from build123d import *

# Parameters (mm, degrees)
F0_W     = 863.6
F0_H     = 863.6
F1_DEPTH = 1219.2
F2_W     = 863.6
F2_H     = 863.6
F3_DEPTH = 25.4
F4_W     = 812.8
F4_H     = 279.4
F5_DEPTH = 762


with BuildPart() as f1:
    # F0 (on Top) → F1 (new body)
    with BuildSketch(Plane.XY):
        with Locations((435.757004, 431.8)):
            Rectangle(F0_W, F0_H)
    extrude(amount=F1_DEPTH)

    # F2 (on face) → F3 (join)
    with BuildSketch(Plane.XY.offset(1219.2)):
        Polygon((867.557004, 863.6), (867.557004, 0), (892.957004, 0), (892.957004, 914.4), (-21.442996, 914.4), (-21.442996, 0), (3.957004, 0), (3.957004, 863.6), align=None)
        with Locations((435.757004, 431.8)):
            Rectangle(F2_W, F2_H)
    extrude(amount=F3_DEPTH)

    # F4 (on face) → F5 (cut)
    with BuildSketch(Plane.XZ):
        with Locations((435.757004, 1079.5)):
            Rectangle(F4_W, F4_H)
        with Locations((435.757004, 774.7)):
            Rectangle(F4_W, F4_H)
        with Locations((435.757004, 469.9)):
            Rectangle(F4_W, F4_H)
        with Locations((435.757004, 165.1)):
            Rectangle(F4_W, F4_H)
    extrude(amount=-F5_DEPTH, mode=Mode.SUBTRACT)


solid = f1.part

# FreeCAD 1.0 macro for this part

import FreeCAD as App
import Part
import Sketcher
Q = App.Units.Quantity

doc = App.newDocument("Part")
params = doc.addObject("Spreadsheet::Sheet", "Params")
for row, (alias, value) in enumerate([
    ("sketch1_width", "34 in"),
    ("pad1_length", "48 in"),
    ("sketch2_width", "36 in"),
    ("pad2_length", "1 in"),
    ("sketch3_width", "32 in"),
    ("sketch3_height", "11 in"),
    ("pocket1_length", "30 in"),
], start=1):
    params.set(f"A{row}", alias)
    params.set(f"B{row}", "=" + value)
    params.setAlias(f"B{row}", alias)

body = doc.addObject("PartDesign::Body", "Body")

# Sketch on XY plane
sketch1 = doc.addObject("Sketcher::SketchObject", "Sketch")
body.addObject(sketch1)
sketch1.AttachmentSupport = (doc.XY_Plane, [""])
sketch1.MapMode = "FlatFace"
sketch1.addGeometry(Part.LineSegment(App.Vector(4, 864, 0), App.Vector(4, 0, 0)), False)
sketch1.addGeometry(Part.LineSegment(App.Vector(4, 0, 0), App.Vector(868, 0, 0)), False)
sketch1.addGeometry(Part.LineSegment(App.Vector(868, 0, 0), App.Vector(868, 864, 0)), False)
sketch1.addGeometry(Part.LineSegment(App.Vector(868, 864, 0), App.Vector(4, 864, 0)), False)
sketch1.addConstraint(Sketcher.Constraint("Coincident", 0, 2, 1, 1))
sketch1.addConstraint(Sketcher.Constraint("Coincident", 1, 2, 2, 1))
sketch1.addConstraint(Sketcher.Constraint("Coincident", 2, 2, 3, 1))
sketch1.addConstraint(Sketcher.Constraint("Coincident", 3, 2, 0, 1))
sketch1.addConstraint(Sketcher.Constraint("Vertical", 0))
sketch1.addConstraint(Sketcher.Constraint("Horizontal", 1))
sketch1.addConstraint(Sketcher.Constraint("Vertical", 2))
sketch1.addConstraint(Sketcher.Constraint("Horizontal", 3))
sketch1.addConstraint(Sketcher.Constraint("PointOnObject", 0, 2, -1))
sketch1.addConstraint(Sketcher.Constraint("Equal", 3, 0))
sketch1.addConstraint(Sketcher.Constraint("DistanceX", 1, 1, 1, 2, Q("34 in")))
sketch1.addConstraint(Sketcher.Constraint("DistanceX", -1, 1, 0, 2, 3.957004))
sketch1.setExpression("Constraints[10]", "Params.sketch1_width")
pad1 = doc.addObject("PartDesign::Pad", "Pad")
body.addObject(pad1)
pad1.Profile = sketch1
pad1.setExpression("Length", "Params.pad1_length")

# Sketch on XY plane
sketch2 = doc.addObject("Sketcher::SketchObject", "Sketch001")
body.addObject(sketch2)
sketch2.AttachmentSupport = (doc.XY_Plane, [""])
sketch2.MapMode = "FlatFace"
sketch2.AttachmentOffset = App.Placement(App.Vector(0, 0, 48 * 25.4), App.Rotation())
sketch2.addGeometry(Part.LineSegment(App.Vector(893, 0, 0), App.Vector(893, 914, 0)), False)
sketch2.addGeometry(Part.LineSegment(App.Vector(893, 914, 0), App.Vector(-21, 914, 0)), False)
sketch2.addGeometry(Part.LineSegment(App.Vector(-21, 914, 0), App.Vector(-21, 0, 0)), False)
sketch2.addGeometry(Part.LineSegment(App.Vector(-21, 0, 0), App.Vector(893, 0, 0)), False)
sketch2.addConstraint(Sketcher.Constraint("Coincident", 0, 2, 1, 1))
sketch2.addConstraint(Sketcher.Constraint("Coincident", 1, 2, 2, 1))
sketch2.addConstraint(Sketcher.Constraint("Coincident", 2, 2, 3, 1))
sketch2.addConstraint(Sketcher.Constraint("Coincident", 3, 2, 0, 1))
sketch2.addConstraint(Sketcher.Constraint("Vertical", 0))
sketch2.addConstraint(Sketcher.Constraint("Horizontal", 1))
sketch2.addConstraint(Sketcher.Constraint("Vertical", 2))
sketch2.addConstraint(Sketcher.Constraint("Horizontal", 3))
sketch2.addConstraint(Sketcher.Constraint("PointOnObject", 2, 2, -1))
sketch2.addConstraint(Sketcher.Constraint("Equal", 3, 0))
sketch2.addConstraint(Sketcher.Constraint("DistanceX", 1, 2, 1, 1, Q("36 in")))
sketch2.addConstraint(Sketcher.Constraint("DistanceX", -1, 1, 0, 2, 892.957004))
sketch2.setExpression("Constraints[10]", "Params.sketch2_width")
pad2 = doc.addObject("PartDesign::Pad", "Pad001")
body.addObject(pad2)
pad2.Profile = sketch2
pad2.setExpression("Length", "Params.pad2_length")

# Sketch on XZ plane
sketch3 = doc.addObject("Sketcher::SketchObject", "Sketch002")
body.addObject(sketch3)
sketch3.AttachmentSupport = (doc.XZ_Plane, [""])
sketch3.MapMode = "FlatFace"
sketch3.addGeometry(Part.LineSegment(App.Vector(29, 1219, 0), App.Vector(29, 940, 0)), False)
sketch3.addGeometry(Part.LineSegment(App.Vector(29, 940, 0), App.Vector(842, 940, 0)), False)
sketch3.addGeometry(Part.LineSegment(App.Vector(842, 940, 0), App.Vector(842, 1219, 0)), False)
sketch3.addGeometry(Part.LineSegment(App.Vector(842, 1219, 0), App.Vector(29, 1219, 0)), False)
sketch3.addGeometry(Part.LineSegment(App.Vector(29, 914, 0), App.Vector(29, 635, 0)), False)
sketch3.addGeometry(Part.LineSegment(App.Vector(29, 635, 0), App.Vector(842, 635, 0)), False)
sketch3.addGeometry(Part.LineSegment(App.Vector(842, 635, 0), App.Vector(842, 914, 0)), False)
sketch3.addGeometry(Part.LineSegment(App.Vector(842, 914, 0), App.Vector(29, 914, 0)), False)
sketch3.addGeometry(Part.LineSegment(App.Vector(29, 610, 0), App.Vector(29, 330, 0)), False)
sketch3.addGeometry(Part.LineSegment(App.Vector(29, 330, 0), App.Vector(842, 330, 0)), False)
sketch3.addGeometry(Part.LineSegment(App.Vector(842, 330, 0), App.Vector(842, 610, 0)), False)
sketch3.addGeometry(Part.LineSegment(App.Vector(842, 610, 0), App.Vector(29, 610, 0)), False)
sketch3.addGeometry(Part.LineSegment(App.Vector(29, 305, 0), App.Vector(29, 25, 0)), False)
sketch3.addGeometry(Part.LineSegment(App.Vector(29, 25, 0), App.Vector(842, 25, 0)), False)
sketch3.addGeometry(Part.LineSegment(App.Vector(842, 25, 0), App.Vector(842, 305, 0)), False)
sketch3.addGeometry(Part.LineSegment(App.Vector(842, 305, 0), App.Vector(29, 305, 0)), False)
sketch3.addConstraint(Sketcher.Constraint("Coincident", 0, 2, 1, 1))
sketch3.addConstraint(Sketcher.Constraint("Coincident", 1, 2, 2, 1))
sketch3.addConstraint(Sketcher.Constraint("Coincident", 2, 2, 3, 1))
sketch3.addConstraint(Sketcher.Constraint("Coincident", 3, 2, 0, 1))
sketch3.addConstraint(Sketcher.Constraint("Coincident", 4, 2, 5, 1))
sketch3.addConstraint(Sketcher.Constraint("Coincident", 5, 2, 6, 1))
sketch3.addConstraint(Sketcher.Constraint("Coincident", 6, 2, 7, 1))
sketch3.addConstraint(Sketcher.Constraint("Coincident", 7, 2, 4, 1))
sketch3.addConstraint(Sketcher.Constraint("Coincident", 8, 2, 9, 1))
sketch3.addConstraint(Sketcher.Constraint("Coincident", 9, 2, 10, 1))
sketch3.addConstraint(Sketcher.Constraint("Coincident", 10, 2, 11, 1))
sketch3.addConstraint(Sketcher.Constraint("Coincident", 11, 2, 8, 1))
sketch3.addConstraint(Sketcher.Constraint("Coincident", 12, 2, 13, 1))
sketch3.addConstraint(Sketcher.Constraint("Coincident", 13, 2, 14, 1))
sketch3.addConstraint(Sketcher.Constraint("Coincident", 14, 2, 15, 1))
sketch3.addConstraint(Sketcher.Constraint("Coincident", 15, 2, 12, 1))
sketch3.addConstraint(Sketcher.Constraint("Vertical", 0))
sketch3.addConstraint(Sketcher.Constraint("Horizontal", 1))
sketch3.addConstraint(Sketcher.Constraint("Vertical", 2))
sketch3.addConstraint(Sketcher.Constraint("Horizontal", 3))
sketch3.addConstraint(Sketcher.Constraint("Vertical", 4))
sketch3.addConstraint(Sketcher.Constraint("Horizontal", 5))
sketch3.addConstraint(Sketcher.Constraint("Vertical", 6))
sketch3.addConstraint(Sketcher.Constraint("Horizontal", 7))
sketch3.addConstraint(Sketcher.Constraint("Vertical", 8))
sketch3.addConstraint(Sketcher.Constraint("Horizontal", 9))
sketch3.addConstraint(Sketcher.Constraint("Vertical", 10))
sketch3.addConstraint(Sketcher.Constraint("Horizontal", 11))
sketch3.addConstraint(Sketcher.Constraint("Vertical", 12))
sketch3.addConstraint(Sketcher.Constraint("Horizontal", 13))
sketch3.addConstraint(Sketcher.Constraint("Vertical", 14))
sketch3.addConstraint(Sketcher.Constraint("Horizontal", 15))
sketch3.addConstraint(Sketcher.Constraint("Vertical", 3, 2, 4, 2))
sketch3.addConstraint(Sketcher.Constraint("Vertical", 2, 2, 5, 2))
sketch3.addConstraint(Sketcher.Constraint("Vertical", 7, 2, 8, 2))
sketch3.addConstraint(Sketcher.Constraint("Vertical", 6, 2, 9, 2))
sketch3.addConstraint(Sketcher.Constraint("Vertical", 11, 2, 12, 2))
sketch3.addConstraint(Sketcher.Constraint("Vertical", 10, 2, 13, 2))
sketch3.addConstraint(Sketcher.Constraint("Equal", 2, 4))
sketch3.addConstraint(Sketcher.Constraint("Equal", 6, 8))
sketch3.addConstraint(Sketcher.Constraint("Equal", 10, 12))
sketch3.addConstraint(Sketcher.Constraint("DistanceX", 1, 1, 1, 2, Q("32 in")))
sketch3.addConstraint(Sketcher.Constraint("DistanceY", 0, 2, 0, 1, Q("11 in")))
sketch3.addConstraint(Sketcher.Constraint("DistanceY", -1, 1, 0, 2, Q("37 in")))
sketch3.addConstraint(Sketcher.Constraint("DistanceY", -1, 1, 4, 2, Q("25 in")))
sketch3.addConstraint(Sketcher.Constraint("DistanceY", -1, 1, 8, 2, Q("13 in")))
sketch3.addConstraint(Sketcher.Constraint("DistanceY", -1, 1, 12, 2, Q("1 in")))
sketch3.addConstraint(Sketcher.Constraint("DistanceX", -1, 1, 0, 2, 29.357004))
sketch3.setExpression("Constraints[41]", "Params.sketch3_width")
sketch3.setExpression("Constraints[42]", "Params.sketch3_height")
pocket1 = doc.addObject("PartDesign::Pocket", "Pocket")
body.addObject(pocket1)
pocket1.Profile = sketch3
pocket1.setExpression("Length", "Params.pocket1_length")

doc.recompute()
